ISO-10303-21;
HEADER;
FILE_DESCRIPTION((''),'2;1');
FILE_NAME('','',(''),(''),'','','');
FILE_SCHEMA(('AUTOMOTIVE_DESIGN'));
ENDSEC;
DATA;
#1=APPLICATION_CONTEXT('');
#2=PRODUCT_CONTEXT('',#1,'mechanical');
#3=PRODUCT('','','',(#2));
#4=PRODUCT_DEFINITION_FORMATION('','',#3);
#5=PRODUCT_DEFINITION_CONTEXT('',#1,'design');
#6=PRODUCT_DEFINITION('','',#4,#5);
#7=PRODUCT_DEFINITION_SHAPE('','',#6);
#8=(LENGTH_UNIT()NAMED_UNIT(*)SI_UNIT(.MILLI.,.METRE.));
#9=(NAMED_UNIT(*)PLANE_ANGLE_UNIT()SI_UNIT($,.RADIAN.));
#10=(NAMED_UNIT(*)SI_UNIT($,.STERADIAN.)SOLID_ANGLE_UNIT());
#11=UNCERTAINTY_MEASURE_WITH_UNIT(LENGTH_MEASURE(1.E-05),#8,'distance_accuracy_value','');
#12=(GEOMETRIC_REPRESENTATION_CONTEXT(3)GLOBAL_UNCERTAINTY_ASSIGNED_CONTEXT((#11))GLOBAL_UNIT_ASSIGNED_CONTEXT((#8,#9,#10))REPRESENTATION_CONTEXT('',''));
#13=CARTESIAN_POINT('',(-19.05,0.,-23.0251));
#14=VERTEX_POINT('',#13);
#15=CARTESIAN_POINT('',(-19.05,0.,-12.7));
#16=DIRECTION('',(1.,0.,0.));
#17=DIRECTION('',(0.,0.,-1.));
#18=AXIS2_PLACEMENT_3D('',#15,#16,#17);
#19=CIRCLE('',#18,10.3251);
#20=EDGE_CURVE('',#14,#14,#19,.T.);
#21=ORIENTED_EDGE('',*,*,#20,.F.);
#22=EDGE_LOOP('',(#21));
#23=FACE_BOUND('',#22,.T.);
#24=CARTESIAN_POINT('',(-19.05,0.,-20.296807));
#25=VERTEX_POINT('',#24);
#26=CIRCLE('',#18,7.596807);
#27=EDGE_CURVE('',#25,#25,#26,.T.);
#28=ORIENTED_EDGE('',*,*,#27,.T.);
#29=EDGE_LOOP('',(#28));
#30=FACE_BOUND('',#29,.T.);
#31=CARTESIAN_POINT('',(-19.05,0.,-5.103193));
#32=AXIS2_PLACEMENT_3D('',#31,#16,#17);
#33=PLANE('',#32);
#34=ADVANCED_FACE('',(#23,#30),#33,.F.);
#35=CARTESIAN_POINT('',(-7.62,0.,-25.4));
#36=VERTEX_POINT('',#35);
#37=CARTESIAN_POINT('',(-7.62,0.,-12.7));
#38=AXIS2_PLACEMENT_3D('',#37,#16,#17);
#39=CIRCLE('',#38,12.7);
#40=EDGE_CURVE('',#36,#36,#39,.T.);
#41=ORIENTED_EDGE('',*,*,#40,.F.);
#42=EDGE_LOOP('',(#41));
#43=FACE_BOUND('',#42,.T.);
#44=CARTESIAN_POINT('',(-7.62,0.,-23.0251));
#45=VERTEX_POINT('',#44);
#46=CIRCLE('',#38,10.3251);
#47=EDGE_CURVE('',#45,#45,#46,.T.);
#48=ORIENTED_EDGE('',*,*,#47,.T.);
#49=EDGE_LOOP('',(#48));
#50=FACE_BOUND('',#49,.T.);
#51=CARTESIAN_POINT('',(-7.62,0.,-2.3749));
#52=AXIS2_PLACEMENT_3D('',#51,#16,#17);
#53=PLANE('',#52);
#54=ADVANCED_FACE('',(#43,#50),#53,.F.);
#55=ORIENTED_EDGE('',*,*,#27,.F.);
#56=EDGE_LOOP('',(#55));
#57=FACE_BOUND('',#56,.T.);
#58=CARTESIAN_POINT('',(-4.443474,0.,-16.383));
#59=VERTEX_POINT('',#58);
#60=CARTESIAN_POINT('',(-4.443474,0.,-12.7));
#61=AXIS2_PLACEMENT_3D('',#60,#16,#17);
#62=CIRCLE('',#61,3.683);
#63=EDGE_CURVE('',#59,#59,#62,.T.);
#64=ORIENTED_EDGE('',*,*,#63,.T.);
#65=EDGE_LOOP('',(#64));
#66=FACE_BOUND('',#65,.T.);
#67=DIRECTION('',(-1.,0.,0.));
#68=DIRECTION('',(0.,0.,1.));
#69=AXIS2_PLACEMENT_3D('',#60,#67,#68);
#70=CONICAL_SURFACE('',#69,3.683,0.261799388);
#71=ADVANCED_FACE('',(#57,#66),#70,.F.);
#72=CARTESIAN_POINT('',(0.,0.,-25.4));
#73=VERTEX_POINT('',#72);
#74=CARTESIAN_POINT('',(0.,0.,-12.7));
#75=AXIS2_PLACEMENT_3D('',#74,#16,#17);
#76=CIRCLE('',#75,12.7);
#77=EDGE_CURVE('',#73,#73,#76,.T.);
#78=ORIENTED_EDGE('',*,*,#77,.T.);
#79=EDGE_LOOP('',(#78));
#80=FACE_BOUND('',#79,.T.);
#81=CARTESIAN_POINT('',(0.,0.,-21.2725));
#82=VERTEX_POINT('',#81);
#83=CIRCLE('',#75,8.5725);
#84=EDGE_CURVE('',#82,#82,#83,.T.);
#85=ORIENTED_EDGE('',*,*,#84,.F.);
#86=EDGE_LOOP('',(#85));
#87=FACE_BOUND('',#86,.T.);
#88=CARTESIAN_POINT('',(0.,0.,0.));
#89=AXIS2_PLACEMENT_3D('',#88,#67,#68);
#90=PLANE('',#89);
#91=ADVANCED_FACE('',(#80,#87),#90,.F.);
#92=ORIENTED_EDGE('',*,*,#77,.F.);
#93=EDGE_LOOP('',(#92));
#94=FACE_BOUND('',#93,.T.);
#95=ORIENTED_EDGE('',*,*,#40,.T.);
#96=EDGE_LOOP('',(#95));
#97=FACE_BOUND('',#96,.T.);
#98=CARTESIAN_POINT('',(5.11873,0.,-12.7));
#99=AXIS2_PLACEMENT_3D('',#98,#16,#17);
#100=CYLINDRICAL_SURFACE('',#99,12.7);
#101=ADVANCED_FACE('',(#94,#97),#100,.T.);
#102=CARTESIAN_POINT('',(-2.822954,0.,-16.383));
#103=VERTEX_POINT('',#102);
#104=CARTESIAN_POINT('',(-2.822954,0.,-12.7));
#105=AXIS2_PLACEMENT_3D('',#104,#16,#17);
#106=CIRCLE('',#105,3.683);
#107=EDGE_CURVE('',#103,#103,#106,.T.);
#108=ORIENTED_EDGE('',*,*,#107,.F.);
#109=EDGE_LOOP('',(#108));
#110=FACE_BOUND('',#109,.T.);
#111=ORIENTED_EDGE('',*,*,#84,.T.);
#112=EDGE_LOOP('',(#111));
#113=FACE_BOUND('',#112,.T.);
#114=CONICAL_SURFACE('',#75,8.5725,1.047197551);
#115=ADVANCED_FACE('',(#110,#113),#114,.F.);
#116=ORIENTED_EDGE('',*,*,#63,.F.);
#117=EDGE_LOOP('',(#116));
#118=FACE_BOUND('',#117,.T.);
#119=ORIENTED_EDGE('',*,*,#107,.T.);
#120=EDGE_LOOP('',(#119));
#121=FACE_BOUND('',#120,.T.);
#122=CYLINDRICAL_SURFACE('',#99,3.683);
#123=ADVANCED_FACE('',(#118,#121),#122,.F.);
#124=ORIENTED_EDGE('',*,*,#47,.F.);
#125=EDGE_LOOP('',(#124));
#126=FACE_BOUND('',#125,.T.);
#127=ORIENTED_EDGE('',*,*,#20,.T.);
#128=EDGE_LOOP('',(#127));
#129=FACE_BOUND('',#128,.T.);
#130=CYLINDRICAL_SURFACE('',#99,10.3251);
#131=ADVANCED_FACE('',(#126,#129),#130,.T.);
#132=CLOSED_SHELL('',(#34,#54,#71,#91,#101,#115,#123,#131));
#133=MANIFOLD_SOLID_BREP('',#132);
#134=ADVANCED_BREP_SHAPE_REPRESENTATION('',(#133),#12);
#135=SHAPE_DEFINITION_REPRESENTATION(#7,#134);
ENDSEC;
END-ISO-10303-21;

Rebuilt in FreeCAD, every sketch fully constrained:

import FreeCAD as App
import Part
import Sketcher
from FreeCAD import Vector
Q = App.Units.Quantity


def add_polygon(sketch, points):
    """Adds a closed chain of lines whose ends are joined by coincident constraints."""
    first, n = sketch.GeometryCount, len(points)
    for a, b in zip(points, points[1:] + points[:1]):
        sketch.addGeometry(Part.LineSegment(App.Vector(*a, 0), App.Vector(*b, 0)), False)
    for i in range(n):
        sketch.addConstraint(Sketcher.Constraint("Coincident", first + i, 2, first + (i + 1) % n, 1))

doc = App.newDocument("Part")
body = doc.addObject("PartDesign::Body", "Body")

# Sketch on XZ plane
sketch1 = body.newObject("Sketcher::SketchObject", "Sketch")
sketch1.AttachmentSupport = (doc.getObject("XZ_Plane"), [""])
sketch1.MapMode = "FlatFace"
add_polygon(sketch1, [(0, 0), (0, -4.1), (-2.8, -9), (-4.4, -9), (-19.1, -5.1), (-19.1, -2.4), (-7.6, -2.4), (-7.6, 0)])  # lines 0-7
sketch1.addGeometry(Part.LineSegment(Vector(0, -12.7, 0), Vector(-19.1, -12.7, 0)), True)  # axis
sketch1.addConstraint([
    Sketcher.Constraint("Vertical", 0),
    Sketcher.Constraint("Horizontal", 2),
    Sketcher.Constraint("Vertical", 4),
    Sketcher.Constraint("Horizontal", 5),
    Sketcher.Constraint("Vertical", 6),
    Sketcher.Constraint("Horizontal", 7),
    Sketcher.Constraint("Horizontal", 8),
    Sketcher.Constraint("Coincident", 7, 2, -1, 1),
    Sketcher.Constraint("PointOnObject", 8, 1, -2),
    Sketcher.Constraint("Vertical", 4, 2, 8, 2),
    Sketcher.Constraint("DistanceX", 7, 1, 7, 2, Q("0.3 in")),
    Sketcher.Constraint("Angle", 1, Q("-120 deg")),
    Sketcher.Constraint("Angle", 3, Q("165 deg")),
    Sketcher.Constraint("DistanceX", 5, 1, 5, 2, Q("0.45 in")),
    Sketcher.Constraint("DistanceY", 8, 1, -1, 1, Q("0.5 in")),
    Sketcher.Constraint("DistanceX", 2, 2, 2, 1, Q("0.0638 in")),
    Sketcher.Constraint("DistanceY", 0, 2, 0, 1, Q("0.1625 in")),
    Sketcher.Constraint("DistanceY", 6, 1, 6, 2, Q("0.0935 in")),
    Sketcher.Constraint("DistanceY", 1, 2, -1, 1, Q("0.355 in")),
])
revolution = body.newObject("PartDesign::Revolution", "Revolution")
revolution.Profile = sketch1
revolution.ReferenceAxis = (sketch1, ["Axis0"])
revolution.Angle = 360

doc.recompute()
